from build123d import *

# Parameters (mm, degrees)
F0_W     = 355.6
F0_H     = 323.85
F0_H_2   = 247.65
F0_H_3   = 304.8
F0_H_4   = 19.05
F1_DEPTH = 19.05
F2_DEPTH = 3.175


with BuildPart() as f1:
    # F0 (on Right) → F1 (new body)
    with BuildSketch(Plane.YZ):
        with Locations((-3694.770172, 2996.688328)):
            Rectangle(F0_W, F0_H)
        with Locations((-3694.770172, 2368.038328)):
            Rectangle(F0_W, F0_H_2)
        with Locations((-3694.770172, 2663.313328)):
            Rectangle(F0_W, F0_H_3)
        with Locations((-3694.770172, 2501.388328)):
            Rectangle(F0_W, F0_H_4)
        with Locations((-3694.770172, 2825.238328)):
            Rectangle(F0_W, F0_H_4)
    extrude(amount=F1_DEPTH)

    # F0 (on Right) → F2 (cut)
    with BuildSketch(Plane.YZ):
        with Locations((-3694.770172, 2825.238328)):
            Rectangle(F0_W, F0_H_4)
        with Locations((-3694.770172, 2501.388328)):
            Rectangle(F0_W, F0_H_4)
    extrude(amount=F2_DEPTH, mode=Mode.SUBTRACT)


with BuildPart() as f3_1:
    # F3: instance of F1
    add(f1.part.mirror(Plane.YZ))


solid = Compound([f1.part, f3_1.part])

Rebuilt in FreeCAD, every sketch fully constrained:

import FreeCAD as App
import Part
import Sketcher
from FreeCAD import Vector
Q = App.Units.Quantity

doc = App.newDocument("Part")
body = doc.addObject("PartDesign::Body", "Body")

sketch1 = doc.addObject("Sketcher::SketchObject", "Sketch")
body.addObject(sketch1)
sketch1.AttachmentSupport = (doc.YZ_Plane, [""])
sketch1.MapMode = "FlatFace"
sketch1.addGeometry([
    Part.LineSegment(Vector(-3873, 3159, 0), Vector(-3873, 2244, 0)),
    Part.LineSegment(Vector(-3873, 2244, 0), Vector(-3517, 2244, 0)),
    Part.LineSegment(Vector(-3517, 2244, 0), Vector(-3517, 3159, 0)),
    Part.LineSegment(Vector(-3517, 3159, 0), Vector(-3873, 3159, 0)),
], False)
sketch1.addConstraint([
    Sketcher.Constraint("Coincident", 0, 2, 1, 1),
    Sketcher.Constraint("Coincident", 1, 2, 2, 1),
    Sketcher.Constraint("Coincident", 2, 2, 3, 1),
    Sketcher.Constraint("Coincident", 3, 2, 0, 1),
    Sketcher.Constraint("Vertical", 0),
    Sketcher.Constraint("Horizontal", 1),
    Sketcher.Constraint("Vertical", 2),
    Sketcher.Constraint("Horizontal", 3),
    Sketcher.Constraint("DistanceX", 1, 1, 1, 2, Q("14 in")),
    Sketcher.Constraint("DistanceY", 0, 2, 0, 1, Q("36 in")),
    Sketcher.Constraint("DistanceX", 1, 2, -1, 1, 3516.970172),
    Sketcher.Constraint("DistanceY", -1, 1, 0, 2, 2244.213328),
])
pad1 = doc.addObject("PartDesign::Pad", "Pad")
body.addObject(pad1)
pad1.Profile = sketch1
pad1.Length = Q("0.75 in")

sketch2 = doc.addObject("Sketcher::SketchObject", "Sketch001")
body.addObject(sketch2)
sketch2.AttachmentSupport = (doc.YZ_Plane, [""])
sketch2.MapMode = "FlatFace"
sketch2.addGeometry([
    Part.LineSegment(Vector(-3873, 2835, 0), Vector(-3873, 2816, 0)),
    Part.LineSegment(Vector(-3873, 2816, 0), Vector(-3517, 2816, 0)),
    Part.LineSegment(Vector(-3517, 2816, 0), Vector(-3517, 2835, 0)),
    Part.LineSegment(Vector(-3517, 2835, 0), Vector(-3873, 2835, 0)),
    Part.LineSegment(Vector(-3873, 2511, 0), Vector(-3873, 2492, 0)),
    Part.LineSegment(Vector(-3873, 2492, 0), Vector(-3517, 2492, 0)),
    Part.LineSegment(Vector(-3517, 2492, 0), Vector(-3517, 2511, 0)),
    Part.LineSegment(Vector(-3517, 2511, 0), Vector(-3873, 2511, 0)),
], False)
sketch2.addConstraint([
    Sketcher.Constraint("Coincident", 0, 2, 1, 1),
    Sketcher.Constraint("Coincident", 1, 2, 2, 1),
    Sketcher.Constraint("Coincident", 2, 2, 3, 1),
    Sketcher.Constraint("Coincident", 3, 2, 0, 1),
    Sketcher.Constraint("Coincident", 4, 2, 5, 1),
    Sketcher.Constraint("Coincident", 5, 2, 6, 1),
    Sketcher.Constraint("Coincident", 6, 2, 7, 1),
    Sketcher.Constraint("Coincident", 7, 2, 4, 1),
    Sketcher.Constraint("Vertical", 0),
    Sketcher.Constraint("Horizontal", 1),
    Sketcher.Constraint("Vertical", 2),
    Sketcher.Constraint("Horizontal", 3),
    Sketcher.Constraint("Vertical", 4),
    Sketcher.Constraint("Horizontal", 5),
    Sketcher.Constraint("Vertical", 6),
    Sketcher.Constraint("Horizontal", 7),
    Sketcher.Constraint("Vertical", 3, 2, 4, 2),
    Sketcher.Constraint("Vertical", 2, 2, 5, 2),
    Sketcher.Constraint("Equal", 2, 4),
    Sketcher.Constraint("DistanceX", 1, 1, 1, 2, Q("14 in")),
    Sketcher.Constraint("DistanceY", 6, 2, 1, 2, Q("12 in")),
    Sketcher.Constraint("DistanceY", 0, 2, 0, 1, Q("0.75 in")),
    Sketcher.Constraint("DistanceX", 1, 2, -1, 1, 3516.970172),
    Sketcher.Constraint("DistanceY", -1, 1, 6, 2, 2510.913328),
])
pocket1 = doc.addObject("PartDesign::Pocket", "Pocket")
body.addObject(pocket1)
pocket1.Profile = sketch2
pocket1.Length = Q("0.125 in")
pocket1.Reversed = True
body2 = doc.addObject("PartDesign::Body", "Body001")
doc.recompute()

mirroring = doc.addObject("Part::Mirroring", "Mirroring")
mirroring.Source = body
mirroring.Base = Vector(0, 0, 0)
mirroring.Normal = Vector(1, 0, 0)
body2.BaseFeature = mirroring
doc.recompute()
mirroring.Visibility = False

doc.recompute()
